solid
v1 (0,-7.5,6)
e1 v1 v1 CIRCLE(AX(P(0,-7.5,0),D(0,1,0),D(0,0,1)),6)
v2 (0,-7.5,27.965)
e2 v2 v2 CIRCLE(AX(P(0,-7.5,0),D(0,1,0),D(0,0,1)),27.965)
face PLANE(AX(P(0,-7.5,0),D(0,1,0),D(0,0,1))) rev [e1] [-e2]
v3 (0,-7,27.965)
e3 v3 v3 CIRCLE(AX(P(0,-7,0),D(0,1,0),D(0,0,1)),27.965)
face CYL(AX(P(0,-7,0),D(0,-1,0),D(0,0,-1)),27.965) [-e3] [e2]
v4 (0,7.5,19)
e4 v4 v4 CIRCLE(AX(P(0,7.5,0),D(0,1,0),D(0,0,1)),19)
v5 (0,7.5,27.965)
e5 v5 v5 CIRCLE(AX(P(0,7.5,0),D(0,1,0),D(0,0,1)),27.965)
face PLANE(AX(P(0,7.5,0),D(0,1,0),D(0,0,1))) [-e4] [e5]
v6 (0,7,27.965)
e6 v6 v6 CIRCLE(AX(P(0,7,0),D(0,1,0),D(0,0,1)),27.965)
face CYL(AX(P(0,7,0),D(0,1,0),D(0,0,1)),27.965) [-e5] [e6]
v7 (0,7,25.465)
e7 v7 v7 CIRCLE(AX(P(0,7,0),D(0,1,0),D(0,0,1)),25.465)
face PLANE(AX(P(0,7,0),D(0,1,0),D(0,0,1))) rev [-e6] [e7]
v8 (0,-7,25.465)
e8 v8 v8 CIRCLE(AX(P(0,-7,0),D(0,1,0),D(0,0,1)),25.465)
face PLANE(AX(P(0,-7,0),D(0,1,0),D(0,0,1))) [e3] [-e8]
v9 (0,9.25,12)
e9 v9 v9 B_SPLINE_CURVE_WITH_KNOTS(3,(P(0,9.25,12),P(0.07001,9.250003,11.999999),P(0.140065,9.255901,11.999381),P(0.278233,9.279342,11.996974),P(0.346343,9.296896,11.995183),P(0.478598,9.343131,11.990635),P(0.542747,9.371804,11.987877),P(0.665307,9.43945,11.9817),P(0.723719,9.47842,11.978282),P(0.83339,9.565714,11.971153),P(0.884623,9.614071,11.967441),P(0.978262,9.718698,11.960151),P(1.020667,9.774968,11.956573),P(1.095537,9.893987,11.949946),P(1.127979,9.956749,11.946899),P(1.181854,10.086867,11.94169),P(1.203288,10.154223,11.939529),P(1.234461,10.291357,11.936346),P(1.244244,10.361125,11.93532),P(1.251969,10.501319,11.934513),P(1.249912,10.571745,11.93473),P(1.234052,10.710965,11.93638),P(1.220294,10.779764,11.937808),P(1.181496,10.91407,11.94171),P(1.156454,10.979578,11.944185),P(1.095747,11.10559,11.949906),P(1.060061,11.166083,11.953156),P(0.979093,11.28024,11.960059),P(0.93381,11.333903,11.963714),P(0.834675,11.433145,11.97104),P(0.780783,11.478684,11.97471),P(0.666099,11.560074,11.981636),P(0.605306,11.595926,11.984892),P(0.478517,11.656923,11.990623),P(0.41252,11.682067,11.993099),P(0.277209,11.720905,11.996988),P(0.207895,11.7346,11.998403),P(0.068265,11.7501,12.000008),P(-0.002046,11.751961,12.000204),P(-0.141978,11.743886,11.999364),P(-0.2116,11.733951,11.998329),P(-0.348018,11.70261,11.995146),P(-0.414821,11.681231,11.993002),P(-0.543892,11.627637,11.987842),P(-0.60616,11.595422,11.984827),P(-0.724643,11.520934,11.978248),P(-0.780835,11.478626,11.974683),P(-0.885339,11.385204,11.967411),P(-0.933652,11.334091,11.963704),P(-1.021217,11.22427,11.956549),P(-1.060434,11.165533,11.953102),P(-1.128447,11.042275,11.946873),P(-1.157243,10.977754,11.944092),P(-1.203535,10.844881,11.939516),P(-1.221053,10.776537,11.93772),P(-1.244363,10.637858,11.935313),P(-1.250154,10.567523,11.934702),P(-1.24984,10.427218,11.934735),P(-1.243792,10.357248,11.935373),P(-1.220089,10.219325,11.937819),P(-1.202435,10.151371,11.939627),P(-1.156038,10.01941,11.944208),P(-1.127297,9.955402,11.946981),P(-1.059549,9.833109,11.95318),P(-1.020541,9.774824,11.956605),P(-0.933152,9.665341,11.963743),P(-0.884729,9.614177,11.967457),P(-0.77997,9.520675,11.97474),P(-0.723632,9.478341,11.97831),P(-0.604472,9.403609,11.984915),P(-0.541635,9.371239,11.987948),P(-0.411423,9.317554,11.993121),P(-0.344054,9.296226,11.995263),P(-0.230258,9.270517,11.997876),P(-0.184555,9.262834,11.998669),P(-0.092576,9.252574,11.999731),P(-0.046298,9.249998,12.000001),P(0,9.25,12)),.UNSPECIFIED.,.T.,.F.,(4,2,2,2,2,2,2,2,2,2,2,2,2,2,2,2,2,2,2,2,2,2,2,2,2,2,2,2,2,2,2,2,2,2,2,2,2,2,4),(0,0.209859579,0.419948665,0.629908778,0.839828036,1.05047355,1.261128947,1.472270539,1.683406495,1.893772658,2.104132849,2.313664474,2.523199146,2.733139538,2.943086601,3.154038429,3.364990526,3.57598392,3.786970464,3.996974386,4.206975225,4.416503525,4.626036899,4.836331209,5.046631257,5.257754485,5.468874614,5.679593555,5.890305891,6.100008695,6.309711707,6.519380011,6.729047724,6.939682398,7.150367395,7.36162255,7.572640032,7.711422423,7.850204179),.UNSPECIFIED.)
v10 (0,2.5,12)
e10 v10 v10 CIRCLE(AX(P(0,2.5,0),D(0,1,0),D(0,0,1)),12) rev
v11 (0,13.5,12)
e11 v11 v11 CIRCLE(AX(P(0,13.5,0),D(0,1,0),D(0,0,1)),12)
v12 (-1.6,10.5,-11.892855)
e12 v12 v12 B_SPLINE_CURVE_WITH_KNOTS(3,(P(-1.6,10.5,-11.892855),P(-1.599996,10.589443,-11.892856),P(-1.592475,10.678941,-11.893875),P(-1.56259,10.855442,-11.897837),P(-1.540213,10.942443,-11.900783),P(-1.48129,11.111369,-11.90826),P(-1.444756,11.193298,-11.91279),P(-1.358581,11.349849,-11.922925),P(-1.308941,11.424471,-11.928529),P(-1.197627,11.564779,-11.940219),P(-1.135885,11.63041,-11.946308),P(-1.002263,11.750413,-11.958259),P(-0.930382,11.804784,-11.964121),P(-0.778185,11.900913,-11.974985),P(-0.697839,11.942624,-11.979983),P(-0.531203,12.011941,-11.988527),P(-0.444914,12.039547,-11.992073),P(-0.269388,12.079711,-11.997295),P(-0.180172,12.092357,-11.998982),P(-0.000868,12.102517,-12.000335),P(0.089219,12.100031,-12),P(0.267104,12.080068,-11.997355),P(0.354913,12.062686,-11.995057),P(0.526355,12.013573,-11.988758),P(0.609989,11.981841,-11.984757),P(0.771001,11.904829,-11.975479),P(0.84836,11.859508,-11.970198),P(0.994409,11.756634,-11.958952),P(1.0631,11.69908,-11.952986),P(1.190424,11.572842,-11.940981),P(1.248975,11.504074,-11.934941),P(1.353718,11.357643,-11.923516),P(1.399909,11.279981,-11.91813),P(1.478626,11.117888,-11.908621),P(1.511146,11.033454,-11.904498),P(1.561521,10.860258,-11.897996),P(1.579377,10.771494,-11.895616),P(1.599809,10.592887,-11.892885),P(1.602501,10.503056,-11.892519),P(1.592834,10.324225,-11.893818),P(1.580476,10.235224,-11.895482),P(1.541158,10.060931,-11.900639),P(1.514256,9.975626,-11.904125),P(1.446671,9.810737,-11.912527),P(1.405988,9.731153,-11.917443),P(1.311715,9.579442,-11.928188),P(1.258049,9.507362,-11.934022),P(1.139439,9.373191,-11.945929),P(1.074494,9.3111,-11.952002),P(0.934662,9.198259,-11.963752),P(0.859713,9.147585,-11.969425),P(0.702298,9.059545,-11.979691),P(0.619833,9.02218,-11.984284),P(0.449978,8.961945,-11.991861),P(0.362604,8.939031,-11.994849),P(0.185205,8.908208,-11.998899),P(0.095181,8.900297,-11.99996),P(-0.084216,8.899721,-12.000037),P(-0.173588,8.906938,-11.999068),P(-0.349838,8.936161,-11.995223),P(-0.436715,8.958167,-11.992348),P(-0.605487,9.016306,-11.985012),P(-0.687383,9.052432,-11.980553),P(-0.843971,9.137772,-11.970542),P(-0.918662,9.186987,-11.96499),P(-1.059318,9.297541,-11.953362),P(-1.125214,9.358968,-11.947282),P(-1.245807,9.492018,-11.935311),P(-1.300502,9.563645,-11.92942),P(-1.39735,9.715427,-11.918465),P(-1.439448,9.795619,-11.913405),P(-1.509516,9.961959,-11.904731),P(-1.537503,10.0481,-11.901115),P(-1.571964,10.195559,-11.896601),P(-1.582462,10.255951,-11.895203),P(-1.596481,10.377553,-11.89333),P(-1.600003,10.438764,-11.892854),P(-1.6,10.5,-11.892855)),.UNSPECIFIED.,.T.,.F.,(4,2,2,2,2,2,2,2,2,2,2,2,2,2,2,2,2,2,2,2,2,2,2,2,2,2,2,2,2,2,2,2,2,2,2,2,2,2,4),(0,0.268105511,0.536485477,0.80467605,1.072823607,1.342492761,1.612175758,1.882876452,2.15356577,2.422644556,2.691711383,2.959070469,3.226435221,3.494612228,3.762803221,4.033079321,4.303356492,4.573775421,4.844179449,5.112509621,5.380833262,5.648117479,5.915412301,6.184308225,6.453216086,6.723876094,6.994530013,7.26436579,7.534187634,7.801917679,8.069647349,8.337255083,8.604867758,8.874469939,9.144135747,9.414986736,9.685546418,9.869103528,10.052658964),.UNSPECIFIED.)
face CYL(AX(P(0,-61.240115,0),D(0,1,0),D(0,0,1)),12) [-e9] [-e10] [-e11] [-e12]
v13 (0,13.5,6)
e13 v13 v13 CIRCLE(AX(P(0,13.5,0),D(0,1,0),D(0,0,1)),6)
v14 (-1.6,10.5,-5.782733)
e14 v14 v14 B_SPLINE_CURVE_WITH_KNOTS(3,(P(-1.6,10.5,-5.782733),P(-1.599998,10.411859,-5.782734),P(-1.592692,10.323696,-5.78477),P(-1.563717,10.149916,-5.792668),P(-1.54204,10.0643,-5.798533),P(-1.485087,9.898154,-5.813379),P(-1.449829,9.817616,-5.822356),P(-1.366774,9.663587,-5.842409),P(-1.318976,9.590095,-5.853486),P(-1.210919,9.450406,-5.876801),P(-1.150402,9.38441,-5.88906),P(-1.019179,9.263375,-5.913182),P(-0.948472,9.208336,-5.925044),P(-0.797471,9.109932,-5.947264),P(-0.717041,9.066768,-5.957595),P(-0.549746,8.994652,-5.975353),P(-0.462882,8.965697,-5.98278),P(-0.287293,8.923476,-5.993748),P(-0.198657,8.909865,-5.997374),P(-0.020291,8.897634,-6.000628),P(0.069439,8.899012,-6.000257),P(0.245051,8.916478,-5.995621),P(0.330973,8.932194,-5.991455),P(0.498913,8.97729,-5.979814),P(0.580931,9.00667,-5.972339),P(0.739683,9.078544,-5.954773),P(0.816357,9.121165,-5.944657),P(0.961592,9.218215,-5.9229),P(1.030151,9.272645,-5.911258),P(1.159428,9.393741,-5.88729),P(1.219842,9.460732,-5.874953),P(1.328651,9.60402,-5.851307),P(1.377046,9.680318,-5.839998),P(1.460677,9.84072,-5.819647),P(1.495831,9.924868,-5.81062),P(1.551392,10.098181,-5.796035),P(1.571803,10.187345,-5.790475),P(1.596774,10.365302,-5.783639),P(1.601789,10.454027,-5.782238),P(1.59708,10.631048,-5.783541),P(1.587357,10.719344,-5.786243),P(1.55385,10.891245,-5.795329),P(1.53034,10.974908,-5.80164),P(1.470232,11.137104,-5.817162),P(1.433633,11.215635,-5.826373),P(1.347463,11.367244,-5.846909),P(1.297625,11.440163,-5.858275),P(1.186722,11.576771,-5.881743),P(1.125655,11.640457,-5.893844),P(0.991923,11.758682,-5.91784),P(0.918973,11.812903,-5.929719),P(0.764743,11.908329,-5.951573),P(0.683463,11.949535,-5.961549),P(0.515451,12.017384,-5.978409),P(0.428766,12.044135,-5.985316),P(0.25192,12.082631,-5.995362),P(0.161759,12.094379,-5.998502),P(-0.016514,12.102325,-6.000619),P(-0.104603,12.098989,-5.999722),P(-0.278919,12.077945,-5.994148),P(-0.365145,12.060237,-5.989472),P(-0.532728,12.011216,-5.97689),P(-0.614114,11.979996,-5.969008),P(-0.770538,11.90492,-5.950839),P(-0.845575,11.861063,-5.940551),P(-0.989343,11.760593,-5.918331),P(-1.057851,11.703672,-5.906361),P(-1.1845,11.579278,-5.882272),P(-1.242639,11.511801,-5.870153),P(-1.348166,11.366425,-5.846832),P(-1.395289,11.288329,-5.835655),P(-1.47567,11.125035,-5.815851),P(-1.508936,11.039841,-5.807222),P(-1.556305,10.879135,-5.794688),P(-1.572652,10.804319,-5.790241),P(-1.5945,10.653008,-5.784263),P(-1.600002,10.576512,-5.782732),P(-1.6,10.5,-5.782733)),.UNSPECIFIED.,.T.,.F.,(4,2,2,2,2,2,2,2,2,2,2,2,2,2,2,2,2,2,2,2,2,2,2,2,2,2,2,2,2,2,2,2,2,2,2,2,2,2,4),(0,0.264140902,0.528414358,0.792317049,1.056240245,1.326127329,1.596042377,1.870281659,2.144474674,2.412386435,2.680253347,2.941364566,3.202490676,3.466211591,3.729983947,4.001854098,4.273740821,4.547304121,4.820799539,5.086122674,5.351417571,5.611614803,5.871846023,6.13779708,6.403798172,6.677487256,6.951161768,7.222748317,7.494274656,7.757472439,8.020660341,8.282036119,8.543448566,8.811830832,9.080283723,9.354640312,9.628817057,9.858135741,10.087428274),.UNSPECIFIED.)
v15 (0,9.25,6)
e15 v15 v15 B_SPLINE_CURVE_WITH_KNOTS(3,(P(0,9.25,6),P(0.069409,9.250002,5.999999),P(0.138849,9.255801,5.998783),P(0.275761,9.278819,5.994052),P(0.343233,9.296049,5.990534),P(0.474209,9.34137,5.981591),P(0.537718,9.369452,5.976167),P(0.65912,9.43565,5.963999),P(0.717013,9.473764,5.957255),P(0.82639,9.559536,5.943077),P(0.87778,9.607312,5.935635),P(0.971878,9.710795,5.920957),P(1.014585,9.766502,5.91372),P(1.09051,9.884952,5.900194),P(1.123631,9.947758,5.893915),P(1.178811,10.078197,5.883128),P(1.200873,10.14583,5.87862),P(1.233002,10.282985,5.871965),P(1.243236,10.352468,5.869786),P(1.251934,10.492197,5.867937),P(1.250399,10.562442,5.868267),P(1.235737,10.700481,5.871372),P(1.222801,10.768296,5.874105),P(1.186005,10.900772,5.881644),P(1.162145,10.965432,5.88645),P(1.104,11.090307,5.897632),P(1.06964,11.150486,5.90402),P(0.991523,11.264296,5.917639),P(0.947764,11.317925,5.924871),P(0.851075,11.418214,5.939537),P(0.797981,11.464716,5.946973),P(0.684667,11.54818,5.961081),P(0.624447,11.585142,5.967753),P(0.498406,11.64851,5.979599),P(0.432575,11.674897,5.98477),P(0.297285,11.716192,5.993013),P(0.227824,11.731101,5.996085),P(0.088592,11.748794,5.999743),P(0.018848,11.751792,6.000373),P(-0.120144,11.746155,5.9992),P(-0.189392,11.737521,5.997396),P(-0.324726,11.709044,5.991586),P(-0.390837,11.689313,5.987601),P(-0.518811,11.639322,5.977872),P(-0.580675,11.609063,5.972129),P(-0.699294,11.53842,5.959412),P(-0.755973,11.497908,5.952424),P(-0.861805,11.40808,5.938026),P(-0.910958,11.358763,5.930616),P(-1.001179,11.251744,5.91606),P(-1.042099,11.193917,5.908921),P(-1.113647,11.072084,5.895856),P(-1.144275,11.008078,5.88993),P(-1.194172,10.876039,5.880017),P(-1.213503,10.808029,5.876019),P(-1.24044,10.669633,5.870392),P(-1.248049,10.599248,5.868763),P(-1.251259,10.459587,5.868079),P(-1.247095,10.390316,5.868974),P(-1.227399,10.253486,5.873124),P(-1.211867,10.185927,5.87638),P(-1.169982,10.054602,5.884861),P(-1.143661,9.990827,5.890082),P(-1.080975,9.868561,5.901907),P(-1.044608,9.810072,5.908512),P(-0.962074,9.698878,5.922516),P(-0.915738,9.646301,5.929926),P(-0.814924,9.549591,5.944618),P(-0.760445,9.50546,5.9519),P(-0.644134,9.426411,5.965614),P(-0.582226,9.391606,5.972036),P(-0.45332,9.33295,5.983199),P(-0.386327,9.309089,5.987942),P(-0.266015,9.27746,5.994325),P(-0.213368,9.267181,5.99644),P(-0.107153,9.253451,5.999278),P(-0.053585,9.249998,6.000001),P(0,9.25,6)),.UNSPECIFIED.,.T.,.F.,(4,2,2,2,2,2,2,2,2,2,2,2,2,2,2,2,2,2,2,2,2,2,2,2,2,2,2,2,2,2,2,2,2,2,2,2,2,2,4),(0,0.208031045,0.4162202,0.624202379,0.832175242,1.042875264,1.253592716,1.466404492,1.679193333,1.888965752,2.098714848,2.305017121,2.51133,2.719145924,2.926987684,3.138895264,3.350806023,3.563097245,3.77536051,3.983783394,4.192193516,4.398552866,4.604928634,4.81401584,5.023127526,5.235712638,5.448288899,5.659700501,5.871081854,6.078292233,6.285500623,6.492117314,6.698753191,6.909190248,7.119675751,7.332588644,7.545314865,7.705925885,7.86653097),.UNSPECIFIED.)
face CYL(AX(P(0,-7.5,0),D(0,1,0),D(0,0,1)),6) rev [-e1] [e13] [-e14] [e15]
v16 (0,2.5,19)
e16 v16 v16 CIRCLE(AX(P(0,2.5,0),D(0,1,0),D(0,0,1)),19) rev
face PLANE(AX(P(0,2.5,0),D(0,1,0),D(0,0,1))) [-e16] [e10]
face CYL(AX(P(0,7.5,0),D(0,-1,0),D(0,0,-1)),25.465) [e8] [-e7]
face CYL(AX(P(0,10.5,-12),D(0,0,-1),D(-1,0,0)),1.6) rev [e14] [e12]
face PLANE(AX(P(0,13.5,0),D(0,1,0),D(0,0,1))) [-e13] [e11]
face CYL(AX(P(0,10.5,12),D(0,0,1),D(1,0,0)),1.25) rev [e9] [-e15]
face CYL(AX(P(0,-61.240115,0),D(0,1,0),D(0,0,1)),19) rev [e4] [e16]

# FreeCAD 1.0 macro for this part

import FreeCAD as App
import Part
import Sketcher

V = App.Vector
Q = App.Units.Quantity

doc = App.newDocument("Part")
body = doc.addObject("PartDesign::Body", "Body")

# Sketch on XZ plane
sketch1 = body.newObject("Sketcher::SketchObject", "Sketch")
sketch1.AttachmentSupport = (doc.getObject("XZ_Plane"), [""])
sketch1.MapMode = "FlatFace"
sketch1.addGeometry(Part.Circle(V(0, 0, 0), V(0, 0, 1), 25.465), False)
sketch1.addConstraint([
    Sketcher.Constraint("Coincident", 0, 3, -1, 1),
    Sketcher.Constraint("Diameter", 0, Q("50.93 mm")),
])
pad1 = body.newObject("PartDesign::Pad", "Pad")
pad1.Profile = sketch1
pad1.Length = 15
pad1.Midplane = True

# Sketch on XZ plane
sketch2 = body.newObject("Sketcher::SketchObject", "Sketch001")
sketch2.AttachmentSupport = (doc.getObject("XZ_Plane"), [""])
sketch2.MapMode = "FlatFace"
sketch2.AttachmentOffset = App.Placement(V(0, 0, -7.5), App.Rotation())
sketch2.addGeometry(Part.Circle(V(0, 0, 0), V(0, 0, 1), 27.965), False)
sketch2.addConstraint([
    Sketcher.Constraint("Coincident", 0, 3, -1, 1),
    Sketcher.Constraint("Diameter", 0, Q("55.93 mm")),
])
pad2 = body.newObject("PartDesign::Pad", "Pad001")
pad2.Profile = sketch2
pad2.Length = 0.5

# Sketch on XZ plane
sketch3 = body.newObject("Sketcher::SketchObject", "Sketch002")
sketch3.AttachmentSupport = (doc.getObject("XZ_Plane"), [""])
sketch3.MapMode = "FlatFace"
sketch3.AttachmentOffset = App.Placement(V(0, 0, 7), App.Rotation())
sketch3.addGeometry(Part.Circle(V(0, 0, 0), V(0, 0, 1), 27.965), False)
sketch3.addConstraint([
    Sketcher.Constraint("Coincident", 0, 3, -1, 1),
    Sketcher.Constraint("Diameter", 0, Q("55.93 mm")),
])
pad3 = body.newObject("PartDesign::Pad", "Pad002")
pad3.Profile = sketch3
pad3.Length = 0.5

# Sketch on XZ plane
sketch4 = body.newObject("Sketcher::SketchObject", "Sketch003")
sketch4.AttachmentSupport = (doc.getObject("XZ_Plane"), [""])
sketch4.MapMode = "FlatFace"
sketch4.AttachmentOffset = App.Placement(V(0, 0, 7.5), App.Rotation())
sketch4.addGeometry(Part.Circle(V(0, 0, 0), V(0, 0, 1), 19), False)
sketch4.addConstraint([
    Sketcher.Constraint("Coincident", 0, 3, -1, 1),
    Sketcher.Constraint("Diameter", 0, Q("38 mm")),
])
pad4 = body.newObject("PartDesign::Pad", "Pad003")
pad4.Profile = sketch4
pad4.Length = 21
pad4.Reversed = True

# Sketch on XZ plane
sketch5 = body.newObject("Sketcher::SketchObject", "Sketch004")
sketch5.AttachmentSupport = (doc.getObject("XZ_Plane"), [""])
sketch5.MapMode = "FlatFace"
sketch5.AttachmentOffset = App.Placement(V(0, 0, 7), App.Rotation())
sketch5.addGeometry(Part.Circle(V(0, 0, 0), V(0, 0, 1), 6), False)
sketch5.addConstraint([
    Sketcher.Constraint("Coincident", 0, 3, -1, 1),
    Sketcher.Constraint("Diameter", 0, Q("12 mm")),
])
pocket1 = body.newObject("PartDesign::Pocket", "Pocket")
pocket1.Profile = sketch5
pocket1.Type = "ThroughAll"
pocket1.Midplane = True

# Sketch on XZ plane
sketch6 = body.newObject("Sketcher::SketchObject", "Sketch005")
sketch6.AttachmentSupport = (doc.getObject("XZ_Plane"), [""])
sketch6.MapMode = "FlatFace"
sketch6.AttachmentOffset = App.Placement(V(0, 0, -2.5), App.Rotation())
sketch6.addGeometry([
    Part.Circle(V(0, 0, 0), V(0, 0, 1), 19),
    Part.Circle(V(0, 0, 0), V(0, 0, 1), 12),
], False)
sketch6.addConstraint([
    Sketcher.Constraint("Coincident", 0, 3, -1, 1),
    Sketcher.Constraint("Coincident", 1, 3, -1, 1),
    Sketcher.Constraint("Diameter", 0, Q("38 mm")),
    Sketcher.Constraint("Diameter", 1, Q("24 mm")),
])
pocket2 = body.newObject("PartDesign::Pocket", "Pocket001")
pocket2.Profile = sketch6
pocket2.Length = 11

# Sketch on XY plane
sketch7 = body.newObject("Sketcher::SketchObject", "Sketch006")
sketch7.AttachmentSupport = (doc.getObject("XY_Plane"), [""])
sketch7.MapMode = "FlatFace"
sketch7.AttachmentOffset = App.Placement(V(0, 0, 12), App.Rotation())
sketch7.addGeometry(Part.Circle(V(0, 10.5, 0), V(0, 0, 1), 1.25), False)
sketch7.addConstraint([
    Sketcher.Constraint("PointOnObject", 0, 3, -2),
    Sketcher.Constraint("Diameter", 0, Q("2.5 mm")),
    Sketcher.Constraint("DistanceY", -1, 1, 0, 3, Q("10.5 mm")),
])
pocket3 = body.newObject("PartDesign::Pocket", "Pocket002")
pocket3.Profile = sketch7
pocket3.Type = "UpToFirst"

# Sketch on XY plane
sketch8 = body.newObject("Sketcher::SketchObject", "Sketch007")
sketch8.AttachmentSupport = (doc.getObject("XY_Plane"), [""])
sketch8.MapMode = "FlatFace"
sketch8.AttachmentOffset = App.Placement(V(0, 0, -12), App.Rotation())
sketch8.addGeometry(Part.Circle(V(0, 10.5, 0), V(0, 0, 1), 1.6), False)
sketch8.addConstraint([
    Sketcher.Constraint("PointOnObject", 0, 3, -2),
    Sketcher.Constraint("Diameter", 0, Q("3.2 mm")),
    Sketcher.Constraint("DistanceY", -1, 1, 0, 3, Q("10.5 mm")),
])
pocket4 = body.newObject("PartDesign::Pocket", "Pocket003")
pocket4.Profile = sketch8
pocket4.Type = "UpToFirst"
pocket4.Reversed = True

doc.recompute()
